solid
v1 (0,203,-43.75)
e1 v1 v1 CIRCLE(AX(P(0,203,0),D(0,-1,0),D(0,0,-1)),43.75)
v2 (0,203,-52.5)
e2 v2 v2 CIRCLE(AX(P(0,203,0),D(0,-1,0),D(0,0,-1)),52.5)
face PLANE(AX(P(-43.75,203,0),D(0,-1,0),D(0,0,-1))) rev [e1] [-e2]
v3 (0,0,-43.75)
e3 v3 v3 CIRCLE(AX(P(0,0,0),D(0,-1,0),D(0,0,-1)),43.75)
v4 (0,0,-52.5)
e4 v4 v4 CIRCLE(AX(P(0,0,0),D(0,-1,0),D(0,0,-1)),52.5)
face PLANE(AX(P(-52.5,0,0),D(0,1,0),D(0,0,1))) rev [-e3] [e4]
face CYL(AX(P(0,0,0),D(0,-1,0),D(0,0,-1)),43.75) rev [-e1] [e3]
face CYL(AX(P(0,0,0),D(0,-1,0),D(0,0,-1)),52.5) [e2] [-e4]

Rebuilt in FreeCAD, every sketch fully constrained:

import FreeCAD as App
import Part
import Sketcher
from FreeCAD import Vector
Q = App.Units.Quantity


def add_polygon(sketch, points):
    """Adds a closed chain of lines whose ends are joined by coincident constraints."""
    first, n = sketch.GeometryCount, len(points)
    for a, b in zip(points, points[1:] + points[:1]):
        sketch.addGeometry(Part.LineSegment(App.Vector(*a, 0), App.Vector(*b, 0)), False)
    for i in range(n):
        sketch.addConstraint(Sketcher.Constraint("Coincident", first + i, 2, first + (i + 1) % n, 1))

doc = App.newDocument("Part")
params = doc.addObject("Spreadsheet::Sheet", "Params")
for row, (alias, value) in enumerate([
    ("sketch1_height", "203 mm"),
    ("sketch1_width", "8.75 mm"),
    ("revolution_angle", "360 deg"),
], start=1):
    params.set(f"A{row}", alias)
    params.set(f"B{row}", "=" + value)
    params.setAlias(f"B{row}", alias)

body = doc.addObject("PartDesign::Body", "Body")

sketch1 = body.newObject("Sketcher::SketchObject", "Sketch")
sketch1.AttachmentSupport = (doc.getObject("XY_Plane"), [""])
sketch1.MapMode = "FlatFace"
add_polygon(sketch1, [(-52, 203), (-52, 0), (-44, 0), (-44, 203)])
sketch1.addConstraint([
    Sketcher.Constraint("Vertical", 0),
    Sketcher.Constraint("Horizontal", 1),
    Sketcher.Constraint("Vertical", 2),
    Sketcher.Constraint("Horizontal", 3),
    Sketcher.Constraint("PointOnObject", 0, 2, -1),
    Sketcher.Constraint("DistanceY", 0, 2, 0, 1, Q("203 mm")),
    Sketcher.Constraint("DistanceX", 1, 1, 1, 2, Q("8.75 mm")),
    Sketcher.Constraint("DistanceX", 0, 2, -1, 1, Q("52.5 mm")),
])
sketch1.setExpression("Constraints[9]", "Params.sketch1_height")
sketch1.setExpression("Constraints[10]", "Params.sketch1_width")
revolution = body.newObject("PartDesign::Revolution", "Revolution")
revolution.Profile = sketch1
revolution.ReferenceAxis = (sketch1, ["V_Axis"])
revolution.setExpression("Angle", "Params.revolution_angle")

doc.recompute()
